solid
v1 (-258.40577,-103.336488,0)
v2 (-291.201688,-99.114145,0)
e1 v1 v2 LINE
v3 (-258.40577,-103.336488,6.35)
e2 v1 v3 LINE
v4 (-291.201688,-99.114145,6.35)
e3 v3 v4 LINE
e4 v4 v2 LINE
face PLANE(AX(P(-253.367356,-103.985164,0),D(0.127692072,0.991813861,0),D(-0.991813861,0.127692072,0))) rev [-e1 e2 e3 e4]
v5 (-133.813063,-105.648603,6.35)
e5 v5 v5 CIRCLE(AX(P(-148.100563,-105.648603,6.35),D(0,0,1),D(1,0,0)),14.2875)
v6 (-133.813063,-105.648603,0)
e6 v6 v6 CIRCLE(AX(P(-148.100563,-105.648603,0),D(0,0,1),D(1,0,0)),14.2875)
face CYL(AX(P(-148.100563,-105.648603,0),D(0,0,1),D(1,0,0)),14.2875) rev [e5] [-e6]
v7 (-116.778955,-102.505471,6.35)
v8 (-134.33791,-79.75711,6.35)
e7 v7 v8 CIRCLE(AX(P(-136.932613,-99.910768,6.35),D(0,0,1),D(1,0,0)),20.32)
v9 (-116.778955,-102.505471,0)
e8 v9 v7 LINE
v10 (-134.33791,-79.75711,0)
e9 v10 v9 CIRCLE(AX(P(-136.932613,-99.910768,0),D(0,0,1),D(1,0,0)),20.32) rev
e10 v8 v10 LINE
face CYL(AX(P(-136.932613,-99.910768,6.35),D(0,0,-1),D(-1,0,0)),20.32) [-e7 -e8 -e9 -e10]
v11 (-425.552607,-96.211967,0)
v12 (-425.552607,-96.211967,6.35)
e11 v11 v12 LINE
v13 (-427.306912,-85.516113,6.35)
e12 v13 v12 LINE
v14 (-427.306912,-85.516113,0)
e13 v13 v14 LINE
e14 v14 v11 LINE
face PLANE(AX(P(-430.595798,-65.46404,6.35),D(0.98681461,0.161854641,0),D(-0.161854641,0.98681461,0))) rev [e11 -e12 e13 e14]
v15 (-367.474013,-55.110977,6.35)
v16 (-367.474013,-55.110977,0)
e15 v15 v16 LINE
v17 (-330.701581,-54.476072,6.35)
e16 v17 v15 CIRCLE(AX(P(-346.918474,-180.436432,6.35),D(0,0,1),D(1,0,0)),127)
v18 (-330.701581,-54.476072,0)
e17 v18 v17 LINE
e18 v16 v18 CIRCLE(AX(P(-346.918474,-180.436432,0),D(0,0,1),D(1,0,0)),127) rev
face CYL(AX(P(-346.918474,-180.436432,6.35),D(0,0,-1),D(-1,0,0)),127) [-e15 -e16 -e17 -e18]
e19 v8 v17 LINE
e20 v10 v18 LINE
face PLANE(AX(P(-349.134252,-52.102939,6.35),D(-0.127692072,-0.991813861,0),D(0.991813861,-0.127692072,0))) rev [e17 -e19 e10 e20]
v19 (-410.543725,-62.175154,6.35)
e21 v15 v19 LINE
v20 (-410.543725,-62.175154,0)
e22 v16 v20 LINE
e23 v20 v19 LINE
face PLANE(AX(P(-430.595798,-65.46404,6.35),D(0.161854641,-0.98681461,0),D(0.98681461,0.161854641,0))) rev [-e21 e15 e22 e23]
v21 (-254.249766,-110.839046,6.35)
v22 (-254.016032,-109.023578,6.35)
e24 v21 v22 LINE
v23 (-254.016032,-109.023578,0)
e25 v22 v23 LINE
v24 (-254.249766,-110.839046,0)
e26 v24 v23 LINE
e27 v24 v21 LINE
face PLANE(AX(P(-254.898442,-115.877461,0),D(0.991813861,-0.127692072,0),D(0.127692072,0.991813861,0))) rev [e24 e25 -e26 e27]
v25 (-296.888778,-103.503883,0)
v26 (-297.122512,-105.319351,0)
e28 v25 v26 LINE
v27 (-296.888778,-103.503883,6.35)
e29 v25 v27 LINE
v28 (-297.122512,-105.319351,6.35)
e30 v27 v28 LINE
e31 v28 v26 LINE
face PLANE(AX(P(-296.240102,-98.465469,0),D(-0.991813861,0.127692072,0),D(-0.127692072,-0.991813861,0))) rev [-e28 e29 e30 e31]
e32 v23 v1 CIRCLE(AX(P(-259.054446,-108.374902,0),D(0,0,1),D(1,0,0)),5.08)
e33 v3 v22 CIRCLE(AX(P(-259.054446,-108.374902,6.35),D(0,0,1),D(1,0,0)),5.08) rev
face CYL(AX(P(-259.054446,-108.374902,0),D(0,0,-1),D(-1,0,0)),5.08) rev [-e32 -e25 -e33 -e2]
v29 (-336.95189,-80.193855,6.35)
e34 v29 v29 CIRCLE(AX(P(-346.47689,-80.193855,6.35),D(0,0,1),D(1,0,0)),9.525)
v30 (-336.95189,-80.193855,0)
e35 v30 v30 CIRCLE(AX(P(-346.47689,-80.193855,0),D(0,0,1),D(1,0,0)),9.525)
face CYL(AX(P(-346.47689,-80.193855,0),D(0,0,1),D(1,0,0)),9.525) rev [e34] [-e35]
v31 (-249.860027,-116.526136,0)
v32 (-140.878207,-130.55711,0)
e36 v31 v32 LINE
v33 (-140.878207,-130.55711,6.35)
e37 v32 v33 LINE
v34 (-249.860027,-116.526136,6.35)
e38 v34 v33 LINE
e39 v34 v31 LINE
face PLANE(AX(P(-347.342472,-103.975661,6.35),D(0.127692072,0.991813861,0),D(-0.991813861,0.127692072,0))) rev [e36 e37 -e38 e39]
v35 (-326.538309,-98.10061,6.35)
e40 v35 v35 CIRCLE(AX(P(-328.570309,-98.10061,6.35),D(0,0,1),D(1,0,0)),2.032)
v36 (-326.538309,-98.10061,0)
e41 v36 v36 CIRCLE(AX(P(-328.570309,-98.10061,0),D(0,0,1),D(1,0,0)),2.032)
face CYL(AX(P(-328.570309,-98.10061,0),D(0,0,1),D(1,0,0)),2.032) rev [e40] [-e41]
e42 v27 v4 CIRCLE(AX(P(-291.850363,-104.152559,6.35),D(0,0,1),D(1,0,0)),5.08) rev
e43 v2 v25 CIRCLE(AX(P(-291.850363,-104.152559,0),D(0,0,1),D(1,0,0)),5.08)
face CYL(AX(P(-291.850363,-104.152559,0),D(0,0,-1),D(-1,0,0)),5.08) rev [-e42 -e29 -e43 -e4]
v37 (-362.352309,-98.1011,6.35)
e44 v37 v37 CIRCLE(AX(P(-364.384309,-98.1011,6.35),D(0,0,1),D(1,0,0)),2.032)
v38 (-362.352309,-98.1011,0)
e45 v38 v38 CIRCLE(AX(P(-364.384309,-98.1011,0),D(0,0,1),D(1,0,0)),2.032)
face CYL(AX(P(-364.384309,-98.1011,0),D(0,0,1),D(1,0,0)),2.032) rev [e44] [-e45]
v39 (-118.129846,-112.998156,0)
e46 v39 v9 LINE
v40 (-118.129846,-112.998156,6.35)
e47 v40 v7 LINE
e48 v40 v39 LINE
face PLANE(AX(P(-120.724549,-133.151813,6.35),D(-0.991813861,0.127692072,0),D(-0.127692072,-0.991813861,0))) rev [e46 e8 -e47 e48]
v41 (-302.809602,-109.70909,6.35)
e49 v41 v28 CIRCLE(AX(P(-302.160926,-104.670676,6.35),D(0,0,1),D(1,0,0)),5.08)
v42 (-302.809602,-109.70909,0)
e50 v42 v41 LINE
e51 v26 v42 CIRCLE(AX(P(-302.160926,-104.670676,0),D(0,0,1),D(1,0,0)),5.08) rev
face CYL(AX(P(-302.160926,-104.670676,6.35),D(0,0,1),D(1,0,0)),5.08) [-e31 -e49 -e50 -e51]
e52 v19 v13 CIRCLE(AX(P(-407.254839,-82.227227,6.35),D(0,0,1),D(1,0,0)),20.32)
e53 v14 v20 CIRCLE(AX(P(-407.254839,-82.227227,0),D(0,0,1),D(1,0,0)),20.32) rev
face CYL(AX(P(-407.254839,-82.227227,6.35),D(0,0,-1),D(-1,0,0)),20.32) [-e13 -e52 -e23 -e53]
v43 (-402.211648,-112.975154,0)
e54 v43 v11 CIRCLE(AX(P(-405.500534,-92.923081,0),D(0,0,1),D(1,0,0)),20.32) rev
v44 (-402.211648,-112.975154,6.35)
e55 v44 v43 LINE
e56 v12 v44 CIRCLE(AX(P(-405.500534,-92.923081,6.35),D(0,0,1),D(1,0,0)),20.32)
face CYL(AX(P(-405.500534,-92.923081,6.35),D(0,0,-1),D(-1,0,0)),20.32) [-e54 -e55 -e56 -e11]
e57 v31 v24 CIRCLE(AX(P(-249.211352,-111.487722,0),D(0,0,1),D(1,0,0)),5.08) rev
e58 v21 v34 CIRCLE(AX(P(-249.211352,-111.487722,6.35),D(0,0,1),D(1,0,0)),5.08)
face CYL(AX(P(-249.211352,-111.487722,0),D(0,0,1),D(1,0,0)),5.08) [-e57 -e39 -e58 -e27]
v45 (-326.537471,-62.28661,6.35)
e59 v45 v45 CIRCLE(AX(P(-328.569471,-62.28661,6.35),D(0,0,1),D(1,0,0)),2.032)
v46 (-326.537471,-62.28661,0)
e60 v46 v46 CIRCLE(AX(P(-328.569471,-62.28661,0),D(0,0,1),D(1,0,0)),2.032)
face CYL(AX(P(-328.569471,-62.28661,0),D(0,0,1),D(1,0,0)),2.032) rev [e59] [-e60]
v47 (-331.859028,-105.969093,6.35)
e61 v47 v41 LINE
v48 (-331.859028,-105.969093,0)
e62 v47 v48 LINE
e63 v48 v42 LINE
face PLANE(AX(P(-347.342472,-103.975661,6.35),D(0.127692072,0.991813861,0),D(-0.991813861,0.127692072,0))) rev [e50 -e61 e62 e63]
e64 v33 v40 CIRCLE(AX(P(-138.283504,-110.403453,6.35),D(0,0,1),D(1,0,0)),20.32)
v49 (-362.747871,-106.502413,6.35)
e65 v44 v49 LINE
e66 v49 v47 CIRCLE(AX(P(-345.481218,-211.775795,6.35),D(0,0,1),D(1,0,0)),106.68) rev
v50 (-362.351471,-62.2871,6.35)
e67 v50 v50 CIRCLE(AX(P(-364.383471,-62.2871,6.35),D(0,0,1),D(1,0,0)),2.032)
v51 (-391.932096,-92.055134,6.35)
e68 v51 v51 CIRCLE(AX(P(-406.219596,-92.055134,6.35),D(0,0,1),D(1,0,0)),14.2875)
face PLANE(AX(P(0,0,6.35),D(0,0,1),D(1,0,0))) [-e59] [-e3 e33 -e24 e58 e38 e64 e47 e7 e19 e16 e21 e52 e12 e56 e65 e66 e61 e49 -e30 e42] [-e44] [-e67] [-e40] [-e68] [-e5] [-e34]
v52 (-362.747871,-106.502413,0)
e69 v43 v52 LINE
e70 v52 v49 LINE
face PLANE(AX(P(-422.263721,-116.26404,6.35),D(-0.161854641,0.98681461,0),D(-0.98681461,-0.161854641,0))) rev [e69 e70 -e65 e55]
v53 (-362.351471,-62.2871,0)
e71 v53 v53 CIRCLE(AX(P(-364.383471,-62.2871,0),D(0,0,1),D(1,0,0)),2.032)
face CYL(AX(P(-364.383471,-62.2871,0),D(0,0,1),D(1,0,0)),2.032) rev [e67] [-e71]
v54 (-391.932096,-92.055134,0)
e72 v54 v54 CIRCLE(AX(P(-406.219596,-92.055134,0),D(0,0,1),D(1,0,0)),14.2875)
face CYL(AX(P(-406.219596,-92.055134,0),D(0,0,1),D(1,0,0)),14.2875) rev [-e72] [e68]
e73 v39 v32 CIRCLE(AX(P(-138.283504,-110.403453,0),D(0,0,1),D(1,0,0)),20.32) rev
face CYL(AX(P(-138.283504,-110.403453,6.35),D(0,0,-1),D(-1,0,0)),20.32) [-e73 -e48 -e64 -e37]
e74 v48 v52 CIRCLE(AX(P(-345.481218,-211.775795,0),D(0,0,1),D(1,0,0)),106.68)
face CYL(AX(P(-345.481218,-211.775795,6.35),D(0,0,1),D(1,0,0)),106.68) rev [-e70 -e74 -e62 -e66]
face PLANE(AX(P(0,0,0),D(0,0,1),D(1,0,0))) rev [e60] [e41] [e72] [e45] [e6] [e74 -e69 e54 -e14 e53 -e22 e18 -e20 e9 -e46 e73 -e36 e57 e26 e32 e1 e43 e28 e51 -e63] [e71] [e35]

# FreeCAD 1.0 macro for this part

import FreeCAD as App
import Part
import Sketcher
Q = App.Units.Quantity


def edges_at(feature, points):
    """Names of the edges that pass closest to the given points."""
    edges = feature.Shape.Edges
    near = lambda p: min(range(len(edges)), key=lambda i: edges[i].distToShape(Part.Vertex(*p))[0])
    return sorted({f"Edge{near(p) + 1}" for p in points})


def add_polygon(sketch, points):
    """Adds a closed chain of lines whose ends are joined by coincident constraints."""
    first, n = sketch.GeometryCount, len(points)
    for a, b in zip(points, points[1:] + points[:1]):
        sketch.addGeometry(Part.LineSegment(App.Vector(*a, 0), App.Vector(*b, 0)), False)
    for i in range(n):
        sketch.addConstraint(Sketcher.Constraint("Coincident", first + i, 2, first + (i + 1) % n, 1))

doc = App.newDocument("Part")
body = doc.addObject("PartDesign::Body", "Body")

# Sketch on XY plane
sketch1 = body.newObject("Sketcher::SketchObject", "Sketch")
sketch1.AttachmentSupport = (doc.getObject("XY_Plane"), [""])
sketch1.MapMode = "FlatFace"
add_polygon(sketch1, [(-349, -52), (-431, -65), (-422, -116), (-347, -104), (-121, -133), (-114, -82)])  # lines 0-5
sketch1.addConstraint([
    Sketcher.Constraint("Perpendicular", 0, 1),
    Sketcher.Constraint("Perpendicular", 1, 2),
    Sketcher.Constraint("Perpendicular", 3, 4),
    Sketcher.Constraint("Perpendicular", 4, 5),
    Sketcher.Constraint("DistanceY", 1, 2, 0, 2, Q("2 in")),
    Sketcher.Constraint("DistanceY", 3, 2, 4, 2, Q("2 in")),
    Sketcher.Constraint("Distance", 0, Q("3.25 in")),
    Sketcher.Constraint("DistanceX", 5, 2, 4, 2, Q("9.25 in")),
    Sketcher.Constraint("DistanceX", 0, 2, -1, 1, 430.595798),
    Sketcher.Constraint("DistanceY", 0, 2, 5, 2, 13.361101),
    Sketcher.Constraint("Distance", 3, 228.48836),
    Sketcher.Constraint("DistanceY", 0, 2, -1, 1, 65.46404),
])
pad1 = body.newObject("PartDesign::Pad", "Pad")
pad1.Profile = sketch1
pad1.Length = Q("0.25 in")

# Sketch on XY plane
sketch2 = body.newObject("Sketcher::SketchObject", "Sketch001")
sketch2.AttachmentSupport = (doc.getObject("XY_Plane"), [""])
sketch2.MapMode = "FlatFace"
sketch2.AttachmentOffset = App.Placement(App.Vector(0, 0, 0.25 * 25.4), App.Rotation())
sketch2.addGeometry(Part.Circle(App.Vector(-406.2, -92.1, 0), App.Vector(0, 0, 1), 14.3), False)  # 0
sketch2.addGeometry(Part.Circle(App.Vector(-148.1, -105.6, 0), App.Vector(0, 0, 1), 14.3), False)  # 1
sketch2.addGeometry(Part.Circle(App.Vector(-364.4, -62.3, 0), App.Vector(0, 0, 1), 2), False)  # 2
sketch2.addGeometry(Part.Circle(App.Vector(-364.4, -98.1, 0), App.Vector(0, 0, 1), 2), False)  # 3
sketch2.addGeometry(Part.Circle(App.Vector(-328.6, -98.1, 0), App.Vector(0, 0, 1), 2), False)  # 4
sketch2.addGeometry(Part.Circle(App.Vector(-328.6, -62.3, 0), App.Vector(0, 0, 1), 2), False)  # 5
sketch2.addGeometry(Part.Circle(App.Vector(-346.5, -80.2, 0), App.Vector(0, 0, 1), 9.5), False)  # 6
add_polygon(sketch2, [(-254.9, -115.9), (-253.4, -104), (-296.2, -98.5), (-297.8, -110.4)])  # lines 7-10
sketch2.addConstraint([
    Sketcher.Constraint("Equal", 0, 1),
    Sketcher.Constraint("Equal", 2, 3),
    Sketcher.Constraint("Equal", 3, 4),
    Sketcher.Constraint("Equal", 4, 5),
    Sketcher.Constraint("Perpendicular", 7, 8),
    Sketcher.Constraint("Perpendicular", 8, 9),
    Sketcher.Constraint("Perpendicular", 9, 10),
    Sketcher.Constraint("Diameter", 2, Q("0.16 in")),
    Sketcher.Constraint("Diameter", 6, Q("0.75 in")),
    Sketcher.Constraint("Diameter", 0, Q("1.125 in")),
    Sketcher.Constraint("DistanceY", 3, 3, 2, 3, Q("1.41 in")),
    Sketcher.Constraint("DistanceX", 3, 3, 4, 3, Q("1.41 in")),
    Sketcher.Constraint("DistanceY", 4, 3, 5, 3, Q("1.41 in")),
    Sketcher.Constraint("DistanceX", 2, 3, 5, 3, Q("1.41 in")),
    Sketcher.Constraint("DistanceY", 2, 3, -1, 1, 62.2871),
    Sketcher.Constraint("DistanceX", 8, 2, -1, 1, 296.240102),
    Sketcher.Constraint("DistanceX", 2, 3, -1, 1, 364.383471),
    Sketcher.Constraint("DistanceX", 3, 3, -1, 1, 364.384309),
    Sketcher.Constraint("DistanceY", 4, 3, -1, 1, 98.10061),
    Sketcher.Constraint("DistanceX", 6, 3, -1, 1, 346.47689),
    Sketcher.Constraint("DistanceY", 8, 2, -1, 1, 98.465469),
    Sketcher.Constraint("DistanceX", 10, 2, -1, 1, 254.898442),
    Sketcher.Constraint("DistanceY", 10, 2, -1, 1, 115.877461),
    Sketcher.Constraint("DistanceY", 1, 3, 0, 3, 13.593468),
    Sketcher.Constraint("DistanceX", 2, 3, 1, 3, 216.282908),
    Sketcher.Constraint("DistanceY", 0, 3, 6, 3, 11.861279),
    Sketcher.Constraint("DistanceY", 7, 2, 6, 3, 23.791308),
    Sketcher.Constraint("DistanceX", 4, 3, 9, 2, 30.799121),
    Sketcher.Constraint("DistanceX", 0, 3, -1, 1, 406.219596),
])
pocket1 = body.newObject("PartDesign::Pocket", "Pocket")
pocket1.Profile = sketch2
pocket1.Length = Q("0.25 in")
doc.recompute()

fillet = body.newObject("PartDesign::Fillet", "Fillet")
fillet.Base = (pocket1, edges_at(pocket1, [(-349.134, -52.103, 3.175)]))
fillet.Radius = Q("5 in")
doc.recompute()

fillet2 = body.newObject("PartDesign::Fillet", "Fillet001")
fillet2.Base = (fillet, edges_at(fillet, [(-430.596, -65.464, 3.175)]))
fillet2.Radius = Q("0.8 in")
doc.recompute()

fillet3 = body.newObject("PartDesign::Fillet", "Fillet002")
fillet3.Base = (fillet2, edges_at(fillet2, [(-422.264, -116.264, 3.175)]))
fillet3.Radius = Q("0.8 in")
doc.recompute()

fillet4 = body.newObject("PartDesign::Fillet", "Fillet003")
fillet4.Base = (fillet3, edges_at(fillet3, [(-114.184, -82.352, 3.175)]))
fillet4.Radius = Q("0.8 in")
doc.recompute()

fillet5 = body.newObject("PartDesign::Fillet", "Fillet004")
fillet5.Base = (fillet4, edges_at(fillet4, [(-120.725, -133.152, 3.175)]))
fillet5.Radius = Q("0.8 in")
doc.recompute()

fillet6 = body.newObject("PartDesign::Fillet", "Fillet005")
fillet6.Base = (fillet5, edges_at(fillet5, [(-347.342, -103.976, 3.175)]))
fillet6.Radius = Q("4.2 in")
doc.recompute()

fillet7 = body.newObject("PartDesign::Fillet", "Fillet006")
fillet7.Base = (fillet6, edges_at(fillet6, [(-254.898, -115.877, 3.175)]))
fillet7.Radius = Q("0.2 in")
doc.recompute()

fillet8 = body.newObject("PartDesign::Fillet", "Fillet007")
fillet8.Base = (fillet7, edges_at(fillet7, [(-297.771, -110.358, 3.175)]))
fillet8.Radius = Q("0.2 in")
doc.recompute()

fillet9 = body.newObject("PartDesign::Fillet", "Fillet008")
fillet9.Base = (fillet8, edges_at(fillet8, [(-296.24, -98.465, 3.175)]))
fillet9.Radius = Q("0.2 in")
doc.recompute()

fillet10 = body.newObject("PartDesign::Fillet", "Fillet009")
fillet10.Base = (fillet9, edges_at(fillet9, [(-253.367, -103.985, 3.175)]))
fillet10.Radius = Q("0.2 in")

doc.recompute()
